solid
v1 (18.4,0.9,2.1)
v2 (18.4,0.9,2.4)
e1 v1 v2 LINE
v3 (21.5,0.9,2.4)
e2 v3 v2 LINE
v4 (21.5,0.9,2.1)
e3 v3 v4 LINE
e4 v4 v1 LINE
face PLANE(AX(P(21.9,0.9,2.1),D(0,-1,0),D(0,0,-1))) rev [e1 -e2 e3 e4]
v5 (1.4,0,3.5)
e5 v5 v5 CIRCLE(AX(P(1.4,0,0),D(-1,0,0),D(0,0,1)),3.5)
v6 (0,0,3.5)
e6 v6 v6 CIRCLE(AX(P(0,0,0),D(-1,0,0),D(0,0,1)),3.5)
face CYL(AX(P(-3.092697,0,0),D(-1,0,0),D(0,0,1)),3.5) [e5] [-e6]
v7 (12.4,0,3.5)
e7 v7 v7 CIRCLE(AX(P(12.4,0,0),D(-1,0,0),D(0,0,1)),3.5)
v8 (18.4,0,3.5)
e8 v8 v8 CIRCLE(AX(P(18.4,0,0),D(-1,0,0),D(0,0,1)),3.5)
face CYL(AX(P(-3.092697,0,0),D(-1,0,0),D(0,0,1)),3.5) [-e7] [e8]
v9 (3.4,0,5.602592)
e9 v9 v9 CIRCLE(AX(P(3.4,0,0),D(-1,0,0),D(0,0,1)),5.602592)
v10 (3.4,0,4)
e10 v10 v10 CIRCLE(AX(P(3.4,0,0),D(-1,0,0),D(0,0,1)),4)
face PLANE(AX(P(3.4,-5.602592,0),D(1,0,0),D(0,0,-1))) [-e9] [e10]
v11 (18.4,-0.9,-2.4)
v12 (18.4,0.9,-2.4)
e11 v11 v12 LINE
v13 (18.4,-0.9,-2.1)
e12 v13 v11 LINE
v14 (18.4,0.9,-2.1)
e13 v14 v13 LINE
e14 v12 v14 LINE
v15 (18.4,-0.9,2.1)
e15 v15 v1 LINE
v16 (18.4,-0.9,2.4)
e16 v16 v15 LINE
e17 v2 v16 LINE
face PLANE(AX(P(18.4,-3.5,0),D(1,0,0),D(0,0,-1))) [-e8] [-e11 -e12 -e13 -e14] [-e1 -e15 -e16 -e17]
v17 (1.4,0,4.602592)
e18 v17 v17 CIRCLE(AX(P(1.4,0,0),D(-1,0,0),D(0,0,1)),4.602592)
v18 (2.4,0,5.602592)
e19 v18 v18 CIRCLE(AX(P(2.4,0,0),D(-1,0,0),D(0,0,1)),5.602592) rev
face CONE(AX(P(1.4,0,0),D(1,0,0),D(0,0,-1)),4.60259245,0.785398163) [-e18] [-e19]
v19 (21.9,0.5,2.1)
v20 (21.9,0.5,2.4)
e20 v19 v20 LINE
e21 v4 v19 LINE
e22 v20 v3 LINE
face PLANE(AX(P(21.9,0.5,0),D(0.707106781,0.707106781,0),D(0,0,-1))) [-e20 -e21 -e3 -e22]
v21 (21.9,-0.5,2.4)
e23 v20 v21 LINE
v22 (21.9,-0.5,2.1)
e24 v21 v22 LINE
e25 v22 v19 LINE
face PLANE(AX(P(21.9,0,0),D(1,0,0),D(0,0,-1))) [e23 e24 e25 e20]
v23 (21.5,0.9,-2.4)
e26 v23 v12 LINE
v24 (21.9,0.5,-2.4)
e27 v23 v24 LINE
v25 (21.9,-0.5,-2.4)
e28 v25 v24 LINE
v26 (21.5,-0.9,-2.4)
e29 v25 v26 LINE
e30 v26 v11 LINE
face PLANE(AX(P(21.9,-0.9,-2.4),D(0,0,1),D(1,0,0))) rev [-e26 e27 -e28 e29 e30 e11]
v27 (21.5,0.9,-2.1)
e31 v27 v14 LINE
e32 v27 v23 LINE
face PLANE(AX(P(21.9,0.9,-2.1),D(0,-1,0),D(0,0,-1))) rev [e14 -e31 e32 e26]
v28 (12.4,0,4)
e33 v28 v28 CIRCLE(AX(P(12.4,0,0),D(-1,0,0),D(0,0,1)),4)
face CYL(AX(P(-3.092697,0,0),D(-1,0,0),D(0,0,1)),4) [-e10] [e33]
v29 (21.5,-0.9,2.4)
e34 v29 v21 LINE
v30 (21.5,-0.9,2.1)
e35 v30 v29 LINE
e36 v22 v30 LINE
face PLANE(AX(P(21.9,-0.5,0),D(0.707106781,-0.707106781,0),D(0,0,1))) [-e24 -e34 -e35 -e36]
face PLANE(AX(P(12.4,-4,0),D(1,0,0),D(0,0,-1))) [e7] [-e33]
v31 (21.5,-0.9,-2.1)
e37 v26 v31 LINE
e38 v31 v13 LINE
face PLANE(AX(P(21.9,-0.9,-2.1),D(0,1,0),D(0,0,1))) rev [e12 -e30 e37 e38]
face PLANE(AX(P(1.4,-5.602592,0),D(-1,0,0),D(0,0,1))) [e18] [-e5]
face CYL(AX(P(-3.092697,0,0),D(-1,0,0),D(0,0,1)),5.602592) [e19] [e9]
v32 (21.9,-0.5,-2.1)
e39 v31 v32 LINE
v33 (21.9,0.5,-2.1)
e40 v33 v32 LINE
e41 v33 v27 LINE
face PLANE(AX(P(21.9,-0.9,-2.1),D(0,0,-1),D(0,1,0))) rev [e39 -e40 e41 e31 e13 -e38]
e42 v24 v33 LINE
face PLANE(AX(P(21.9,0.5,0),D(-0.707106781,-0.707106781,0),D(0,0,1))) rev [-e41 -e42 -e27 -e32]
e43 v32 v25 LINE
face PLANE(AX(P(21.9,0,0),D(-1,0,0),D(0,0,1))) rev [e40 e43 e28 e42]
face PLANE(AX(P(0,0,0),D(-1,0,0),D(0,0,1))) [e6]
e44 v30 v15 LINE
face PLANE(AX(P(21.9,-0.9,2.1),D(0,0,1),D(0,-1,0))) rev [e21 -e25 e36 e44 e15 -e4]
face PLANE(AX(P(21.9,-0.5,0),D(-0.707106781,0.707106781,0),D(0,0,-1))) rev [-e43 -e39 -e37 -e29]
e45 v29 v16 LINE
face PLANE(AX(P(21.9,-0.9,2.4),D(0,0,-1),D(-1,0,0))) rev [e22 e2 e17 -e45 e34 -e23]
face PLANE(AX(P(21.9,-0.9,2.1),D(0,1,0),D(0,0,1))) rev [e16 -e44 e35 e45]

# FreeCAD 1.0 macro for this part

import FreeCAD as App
import Part
import Sketcher


def edges_at(feature, points):
    """Names of the edges that pass closest to the given points."""
    edges = feature.Shape.Edges
    near = lambda p: min(range(len(edges)), key=lambda i: edges[i].distToShape(Part.Vertex(*p))[0])
    return sorted({f"Edge{near(p) + 1}" for p in points})

doc = App.newDocument("Part")
body = doc.addObject("PartDesign::Body", "Body")

# Sketch on XY plane
sketch1 = body.newObject("Sketcher::SketchObject", "Sketch")
sketch1.AttachmentSupport = (doc.getObject("XY_Plane"), [""])
sketch1.MapMode = "FlatFace"
sketch1.addGeometry(Part.LineSegment(App.Vector(0, 0, 0), App.Vector(0, -3.5, 0)), False)
sketch1.addGeometry(Part.LineSegment(App.Vector(0, -3.5, 0), App.Vector(1.4, -3.5, 0)), False)
sketch1.addGeometry(Part.LineSegment(App.Vector(1.4, -3.5, 0), App.Vector(1.4, -5.6, 0)), False)
sketch1.addGeometry(Part.LineSegment(App.Vector(1.4, -5.6, 0), App.Vector(3.4, -5.6, 0)), False)
sketch1.addGeometry(Part.LineSegment(App.Vector(3.4, -5.6, 0), App.Vector(3.4, -4, 0)), False)
sketch1.addGeometry(Part.LineSegment(App.Vector(3.4, -4, 0), App.Vector(12.4, -4, 0)), False)
sketch1.addGeometry(Part.LineSegment(App.Vector(12.4, -4, 0), App.Vector(12.4, -3.5, 0)), False)
sketch1.addGeometry(Part.LineSegment(App.Vector(12.4, -3.5, 0), App.Vector(18.4, -3.5, 0)), False)
sketch1.addGeometry(Part.LineSegment(App.Vector(18.4, -3.5, 0), App.Vector(18.4, 0, 0)), False)
sketch1.addGeometry(Part.LineSegment(App.Vector(18.4, 0, 0), App.Vector(0, 0, 0)), False)
sketch1.addConstraint(Sketcher.Constraint("Coincident", 0, 2, 1, 1))
sketch1.addConstraint(Sketcher.Constraint("Coincident", 1, 2, 2, 1))
sketch1.addConstraint(Sketcher.Constraint("Coincident", 2, 2, 3, 1))
sketch1.addConstraint(Sketcher.Constraint("Coincident", 3, 2, 4, 1))
sketch1.addConstraint(Sketcher.Constraint("Coincident", 4, 2, 5, 1))
sketch1.addConstraint(Sketcher.Constraint("Coincident", 5, 2, 6, 1))
sketch1.addConstraint(Sketcher.Constraint("Coincident", 6, 2, 7, 1))
sketch1.addConstraint(Sketcher.Constraint("Coincident", 7, 2, 8, 1))
sketch1.addConstraint(Sketcher.Constraint("Coincident", 8, 2, 9, 1))
sketch1.addConstraint(Sketcher.Constraint("Coincident", 9, 2, 0, 1))
sketch1.addConstraint(Sketcher.Constraint("Vertical", 0))
sketch1.addConstraint(Sketcher.Constraint("Horizontal", 1))
sketch1.addConstraint(Sketcher.Constraint("Vertical", 2))
sketch1.addConstraint(Sketcher.Constraint("Horizontal", 3))
sketch1.addConstraint(Sketcher.Constraint("Vertical", 4))
sketch1.addConstraint(Sketcher.Constraint("Horizontal", 5))
sketch1.addConstraint(Sketcher.Constraint("Vertical", 6))
sketch1.addConstraint(Sketcher.Constraint("Horizontal", 7))
sketch1.addConstraint(Sketcher.Constraint("Vertical", 8))
sketch1.addConstraint(Sketcher.Constraint("Horizontal", 9))
sketch1.addConstraint(Sketcher.Constraint("Coincident", 9, 2, -1, 1))
sketch1.addConstraint(Sketcher.Constraint("Horizontal", 1, 2, 6, 2))
sketch1.addConstraint(Sketcher.Constraint("DistanceX", 3, 1, 3, 2, 2.0))
sketch1.addConstraint(Sketcher.Constraint("DistanceX", 5, 1, 5, 2, 9.0))
sketch1.addConstraint(Sketcher.Constraint("DistanceX", 7, 1, 7, 2, 6.0))
sketch1.addConstraint(Sketcher.Constraint("DistanceX", 1, 1, 1, 2, 1.4))
sketch1.addConstraint(Sketcher.Constraint("DistanceY", 0, 2, 0, 1, 3.5))
sketch1.addConstraint(Sketcher.Constraint("DistanceY", 6, 1, 6, 2, 0.5))
sketch1.addConstraint(Sketcher.Constraint("DistanceY", 2, 2, 2, 1, 2.102592))
revolution = body.newObject("PartDesign::Revolution", "Revolution")
revolution.Profile = sketch1
revolution.ReferenceAxis = (sketch1, ["H_Axis"])
revolution.Angle = 360
doc.recompute()

chamfer = body.newObject("PartDesign::Chamfer", "Chamfer")
chamfer.Base = (revolution, edges_at(revolution, [(1.4, 0, -5.603)]))
chamfer.Size = 1

# Sketch on YZ plane
sketch2 = body.newObject("Sketcher::SketchObject", "Sketch001")
sketch2.AttachmentSupport = (doc.getObject("YZ_Plane"), [""])
sketch2.MapMode = "FlatFace"
sketch2.AttachmentOffset = App.Placement(App.Vector(0, 0, 18.4), App.Rotation())
sketch2.addGeometry(Part.LineSegment(App.Vector(0.9, 2.4, 0), App.Vector(-0.9, 2.4, 0)), False)
sketch2.addGeometry(Part.LineSegment(App.Vector(-0.9, 2.4, 0), App.Vector(-0.9, 2.1, 0)), False)
sketch2.addGeometry(Part.LineSegment(App.Vector(-0.9, 2.1, 0), App.Vector(0.9, 2.1, 0)), False)
sketch2.addGeometry(Part.LineSegment(App.Vector(0.9, 2.1, 0), App.Vector(0.9, 2.4, 0)), False)
sketch2.addGeometry(Part.LineSegment(App.Vector(0.9, -2.1, 0), App.Vector(-0.9, -2.1, 0)), False)
sketch2.addGeometry(Part.LineSegment(App.Vector(-0.9, -2.1, 0), App.Vector(-0.9, -2.4, 0)), False)
sketch2.addGeometry(Part.LineSegment(App.Vector(-0.9, -2.4, 0), App.Vector(0.9, -2.4, 0)), False)
sketch2.addGeometry(Part.LineSegment(App.Vector(0.9, -2.4, 0), App.Vector(0.9, -2.1, 0)), False)
sketch2.addConstraint(Sketcher.Constraint("Coincident", 0, 2, 1, 1))
sketch2.addConstraint(Sketcher.Constraint("Coincident", 1, 2, 2, 1))
sketch2.addConstraint(Sketcher.Constraint("Coincident", 2, 2, 3, 1))
sketch2.addConstraint(Sketcher.Constraint("Coincident", 3, 2, 0, 1))
sketch2.addConstraint(Sketcher.Constraint("Coincident", 4, 2, 5, 1))
sketch2.addConstraint(Sketcher.Constraint("Coincident", 5, 2, 6, 1))
sketch2.addConstraint(Sketcher.Constraint("Coincident", 6, 2, 7, 1))
sketch2.addConstraint(Sketcher.Constraint("Coincident", 7, 2, 4, 1))
sketch2.addConstraint(Sketcher.Constraint("Horizontal", 0))
sketch2.addConstraint(Sketcher.Constraint("Vertical", 1))
sketch2.addConstraint(Sketcher.Constraint("Horizontal", 2))
sketch2.addConstraint(Sketcher.Constraint("Vertical", 3))
sketch2.addConstraint(Sketcher.Constraint("Horizontal", 4))
sketch2.addConstraint(Sketcher.Constraint("Vertical", 5))
sketch2.addConstraint(Sketcher.Constraint("Horizontal", 6))
sketch2.addConstraint(Sketcher.Constraint("Vertical", 7))
sketch2.addConstraint(Sketcher.Constraint("Symmetric", 2, 2, 4, 2, -1, 1))
sketch2.addConstraint(Sketcher.Constraint("Symmetric", 0, 2, 6, 2, -1, 1))
sketch2.addConstraint(Sketcher.Constraint("Vertical", 1, 2, 4, 2))
sketch2.addConstraint(Sketcher.Constraint("DistanceX", 0, 2, 0, 1, 1.8))
sketch2.addConstraint(Sketcher.Constraint("DistanceY", 1, 2, 1, 1, 0.3))
sketch2.addConstraint(Sketcher.Constraint("DistanceY", -1, 1, 0, 2, 2.4))
pad1 = body.newObject("PartDesign::Pad", "Pad")
pad1.Profile = sketch2
pad1.Length = 3.5
doc.recompute()

chamfer2 = body.newObject("PartDesign::Chamfer", "Chamfer001")
chamfer2.Base = (pad1, edges_at(pad1, [
    (21.9, -0.9, 2.25),
    (21.9, 0.9, 2.25),
    (21.9, -0.9, -2.25),
    (21.9, 0.9, -2.25),
]))
chamfer2.Size = 0.4

doc.recompute()
